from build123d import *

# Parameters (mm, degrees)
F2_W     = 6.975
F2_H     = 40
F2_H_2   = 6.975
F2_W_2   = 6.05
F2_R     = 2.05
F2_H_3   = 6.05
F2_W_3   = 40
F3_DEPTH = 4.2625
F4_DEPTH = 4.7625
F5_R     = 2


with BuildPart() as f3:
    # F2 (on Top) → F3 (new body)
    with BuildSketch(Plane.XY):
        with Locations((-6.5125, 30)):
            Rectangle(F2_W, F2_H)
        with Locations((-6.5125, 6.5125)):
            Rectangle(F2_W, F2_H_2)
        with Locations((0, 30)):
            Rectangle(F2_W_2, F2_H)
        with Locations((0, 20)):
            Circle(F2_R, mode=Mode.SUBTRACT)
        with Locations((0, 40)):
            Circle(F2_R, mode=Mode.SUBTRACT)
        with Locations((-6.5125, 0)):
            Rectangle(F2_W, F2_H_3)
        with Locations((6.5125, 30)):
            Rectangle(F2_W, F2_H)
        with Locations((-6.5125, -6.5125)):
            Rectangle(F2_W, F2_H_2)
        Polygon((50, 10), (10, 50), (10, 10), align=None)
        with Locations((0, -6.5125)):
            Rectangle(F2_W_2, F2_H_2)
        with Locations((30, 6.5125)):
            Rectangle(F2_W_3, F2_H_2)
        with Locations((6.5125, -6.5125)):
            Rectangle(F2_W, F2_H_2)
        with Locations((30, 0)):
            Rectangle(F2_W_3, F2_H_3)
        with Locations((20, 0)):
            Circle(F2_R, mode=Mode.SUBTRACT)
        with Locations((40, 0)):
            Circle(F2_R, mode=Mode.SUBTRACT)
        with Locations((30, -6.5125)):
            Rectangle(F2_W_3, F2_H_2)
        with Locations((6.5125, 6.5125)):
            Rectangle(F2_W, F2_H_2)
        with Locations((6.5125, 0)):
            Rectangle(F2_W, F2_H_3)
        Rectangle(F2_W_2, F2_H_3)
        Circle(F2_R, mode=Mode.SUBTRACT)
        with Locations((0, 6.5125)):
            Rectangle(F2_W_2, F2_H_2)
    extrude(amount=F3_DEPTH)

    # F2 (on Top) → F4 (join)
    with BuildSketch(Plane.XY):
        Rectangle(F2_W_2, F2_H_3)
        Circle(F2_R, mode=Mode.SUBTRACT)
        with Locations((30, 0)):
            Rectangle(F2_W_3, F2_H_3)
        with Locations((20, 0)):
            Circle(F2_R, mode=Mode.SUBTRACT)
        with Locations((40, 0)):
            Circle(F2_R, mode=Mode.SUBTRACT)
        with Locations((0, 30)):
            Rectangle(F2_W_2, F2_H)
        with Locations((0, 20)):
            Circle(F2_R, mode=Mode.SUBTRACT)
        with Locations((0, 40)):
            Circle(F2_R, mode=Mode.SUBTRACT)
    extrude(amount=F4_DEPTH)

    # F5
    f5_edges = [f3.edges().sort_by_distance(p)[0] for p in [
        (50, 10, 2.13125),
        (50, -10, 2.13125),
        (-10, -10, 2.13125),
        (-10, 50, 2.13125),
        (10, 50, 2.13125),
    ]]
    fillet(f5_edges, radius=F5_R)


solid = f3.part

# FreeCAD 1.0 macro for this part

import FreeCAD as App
import Part
import Sketcher
from FreeCAD import Vector
Q = App.Units.Quantity


def edges_at(feature, points):
    """Names of the edges that pass closest to the given points."""
    edges = feature.Shape.Edges
    near = lambda p: min(range(len(edges)), key=lambda i: edges[i].distToShape(Part.Vertex(*p))[0])
    return sorted({f"Edge{near(p) + 1}" for p in points})


def add_polygon(sketch, points):
    """Adds a closed chain of lines whose ends are joined by coincident constraints."""
    first, n = sketch.GeometryCount, len(points)
    for a, b in zip(points, points[1:] + points[:1]):
        sketch.addGeometry(Part.LineSegment(App.Vector(*a, 0), App.Vector(*b, 0)), False)
    for i in range(n):
        sketch.addConstraint(Sketcher.Constraint("Coincident", first + i, 2, first + (i + 1) % n, 1))

doc = App.newDocument("Part")
body = doc.addObject("PartDesign::Body", "Body")

sketch1 = body.newObject("Sketcher::SketchObject", "Sketch")
sketch1.AttachmentSupport = (doc.getObject("XY_Plane"), [""])
sketch1.MapMode = "FlatFace"
add_polygon(sketch1, [(-10, 50), (-10, -10), (50, -10), (50, 10), (10, 50)])
sketch1.addGeometry(Part.Circle(Vector(0, 0, 0), Vector(0, 0, 1), 2), False)
sketch1.addGeometry(Part.Circle(Vector(20, 0, 0), Vector(0, 0, 1), 2), False)
sketch1.addGeometry(Part.Circle(Vector(40, 0, 0), Vector(0, 0, 1), 2), False)
sketch1.addGeometry(Part.Circle(Vector(0, 20, 0), Vector(0, 0, 1), 2), False)
sketch1.addGeometry(Part.Circle(Vector(0, 40, 0), Vector(0, 0, 1), 2), False)
sketch1.addConstraint([
    Sketcher.Constraint("Vertical", 0),
    Sketcher.Constraint("Horizontal", 1),
    Sketcher.Constraint("Vertical", 2),
    Sketcher.Constraint("Horizontal", 4),
    Sketcher.Constraint("Coincident", 5, 3, -1, 1),
    Sketcher.Constraint("Equal", 5, 6),
    Sketcher.Constraint("Equal", 6, 7),
    Sketcher.Constraint("Equal", 7, 8),
    Sketcher.Constraint("Equal", 8, 9),
    Sketcher.Constraint("PointOnObject", 6, 3, -1),
    Sketcher.Constraint("PointOnObject", 7, 3, -1),
    Sketcher.Constraint("PointOnObject", 8, 3, -2),
    Sketcher.Constraint("PointOnObject", 9, 3, -2),
    Sketcher.Constraint("Equal", 1, 0),
    Sketcher.Constraint("Equal", 4, 2),
    Sketcher.Constraint("Diameter", 5, Q("4.1 mm")),
    Sketcher.Constraint("DistanceX", 1, 1, 1, 2, Q("60 mm")),
    Sketcher.Constraint("DistanceX", 4, 2, 4, 1, Q("20 mm")),
    Sketcher.Constraint("DistanceX", -1, 1, 6, 3, Q("20 mm")),
    Sketcher.Constraint("DistanceX", -1, 1, 7, 3, Q("40 mm")),
    Sketcher.Constraint("DistanceY", -1, 1, 8, 3, Q("20 mm")),
    Sketcher.Constraint("DistanceY", -1, 1, 9, 3, Q("40 mm")),
    Sketcher.Constraint("DistanceX", 0, 2, -1, 1, Q("10 mm")),
    Sketcher.Constraint("DistanceY", 0, 2, -1, 1, Q("10 mm")),
])
pad1 = body.newObject("PartDesign::Pad", "Pad")
pad1.Profile = sketch1
pad1.Length = 4.2625

sketch2 = body.newObject("Sketcher::SketchObject", "Sketch001")
sketch2.AttachmentSupport = (doc.getObject("XY_Plane"), [""])
sketch2.MapMode = "FlatFace"
add_polygon(sketch2, [(-3, 3), (-3, -3), (3, -3), (3, 3)])
sketch2.addGeometry(Part.Circle(Vector(0, 0, 0), Vector(0, 0, 1), 2), False)
add_polygon(sketch2, [(10, 3), (10, -3), (50, -3), (50, 3)])
sketch2.addGeometry(Part.Circle(Vector(20, 0, 0), Vector(0, 0, 1), 2), False)
sketch2.addGeometry(Part.Circle(Vector(40, 0, 0), Vector(0, 0, 1), 2), False)
add_polygon(sketch2, [(-3, 50), (-3, 10), (3, 10), (3, 50)])
sketch2.addGeometry(Part.Circle(Vector(0, 20, 0), Vector(0, 0, 1), 2), False)
sketch2.addGeometry(Part.Circle(Vector(0, 40, 0), Vector(0, 0, 1), 2), False)
sketch2.addConstraint([
    Sketcher.Constraint("Vertical", 0),
    Sketcher.Constraint("Horizontal", 1),
    Sketcher.Constraint("Vertical", 2),
    Sketcher.Constraint("Horizontal", 3),
    Sketcher.Constraint("Vertical", 5),
    Sketcher.Constraint("Horizontal", 6),
    Sketcher.Constraint("Vertical", 7),
    Sketcher.Constraint("Horizontal", 8),
    Sketcher.Constraint("Vertical", 11),
    Sketcher.Constraint("Horizontal", 12),
    Sketcher.Constraint("Vertical", 13),
    Sketcher.Constraint("Horizontal", 14),
    Sketcher.Constraint("Coincident", 4, 3, -1, 1),
    Sketcher.Constraint("Equal", 4, 9),
    Sketcher.Constraint("Equal", 9, 10),
    Sketcher.Constraint("Equal", 10, 15),
    Sketcher.Constraint("Equal", 15, 16),
    Sketcher.Constraint("Symmetric", 0, 2, 2, 2, -1, 1),
    Sketcher.Constraint("PointOnObject", 9, 3, -1),
    Sketcher.Constraint("PointOnObject", 10, 3, -1),
    Sketcher.Constraint("PointOnObject", 15, 3, -2),
    Sketcher.Constraint("PointOnObject", 16, 3, -2),
    Sketcher.Constraint("Horizontal", 1, 2, 5, 2),
    Sketcher.Constraint("Horizontal", 3, 2, 7, 2),
    Sketcher.Constraint("Vertical", 3, 2, 11, 2),
    Sketcher.Constraint("Vertical", 2, 2, 12, 2),
    Sketcher.Constraint("Equal", 14, 0),
    Sketcher.Constraint("Equal", 8, 11),
    Sketcher.Constraint("Diameter", 4, Q("4.1 mm")),
    Sketcher.Constraint("DistanceX", 6, 1, 6, 2, Q("40 mm")),
    Sketcher.Constraint("DistanceX", -1, 1, 9, 3, Q("20 mm")),
    Sketcher.Constraint("DistanceX", -1, 1, 10, 3, Q("40 mm")),
    Sketcher.Constraint("DistanceY", -1, 1, 15, 3, Q("20 mm")),
    Sketcher.Constraint("DistanceY", -1, 1, 16, 3, Q("40 mm")),
    Sketcher.Constraint("DistanceX", -1, 1, 5, 2, Q("10 mm")),
    Sketcher.Constraint("DistanceY", -1, 1, 11, 2, Q("10 mm")),
    Sketcher.Constraint("DistanceX", 1, 1, 1, 2, Q("6.05 mm")),
])
pad2 = body.newObject("PartDesign::Pad", "Pad001")
pad2.Profile = sketch2
pad2.Length = 4.7625
doc.recompute()

fillet = body.newObject("PartDesign::Fillet", "Fillet")
fillet.Base = (pad2, edges_at(pad2, [
    (50, 10, 2.131),
    (50, -10, 2.131),
    (-10, -10, 2.131),
    (-10, 50, 2.131),
    (10, 50, 2.131),
]))
fillet.Radius = 2

doc.recompute()
